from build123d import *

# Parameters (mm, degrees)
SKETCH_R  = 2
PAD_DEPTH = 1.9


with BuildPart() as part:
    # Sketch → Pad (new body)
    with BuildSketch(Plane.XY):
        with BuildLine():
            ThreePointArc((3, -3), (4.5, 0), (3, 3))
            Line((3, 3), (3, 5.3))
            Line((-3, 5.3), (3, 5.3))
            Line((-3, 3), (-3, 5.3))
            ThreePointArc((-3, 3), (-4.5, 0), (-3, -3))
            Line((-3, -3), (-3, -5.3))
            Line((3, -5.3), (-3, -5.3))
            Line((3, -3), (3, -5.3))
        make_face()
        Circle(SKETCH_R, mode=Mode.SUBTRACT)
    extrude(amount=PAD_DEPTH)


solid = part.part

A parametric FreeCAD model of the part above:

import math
import FreeCAD as App
import Part
import Sketcher

V = App.Vector

doc = App.newDocument("Part")
body = doc.addObject("PartDesign::Body", "Body")

# Sketch on XY plane
sketch1 = body.newObject("Sketcher::SketchObject", "Sketch")
sketch1.AttachmentSupport = (doc.getObject("XY_Plane"), [""])
sketch1.MapMode = "FlatFace"
sketch1.addGeometry([
    Part.ArcOfCircle(Part.Circle(V(0.8, 0, 0), V(0, 0, 1), 3.8), math.radians(-53), math.radians(53)),  # 0
    Part.LineSegment(V(3, 3, 0), V(3, 5.3, 0)),  # 1
    Part.LineSegment(V(3, 5.3, 0), V(-3, 5.3, 0)),  # 2
    Part.LineSegment(V(-3, 5.3, 0), V(-3, 3, 0)),  # 3
    Part.ArcOfCircle(Part.Circle(V(-0.8, 0, 0), V(0, 0, 1), 3.8), math.radians(127), math.radians(233)),  # 4
    Part.LineSegment(V(-3, -3, 0), V(-3, -5.3, 0)),  # 5
    Part.LineSegment(V(-3, -5.3, 0), V(3, -5.3, 0)),  # 6
    Part.LineSegment(V(3, -5.3, 0), V(3, -3, 0)),  # 7
    Part.Circle(V(0, 0, 0), V(0, 0, 1), 2),  # 8
], False)
sketch1.addConstraint([
    Sketcher.Constraint("Coincident", 0, 2, 1, 1),
    Sketcher.Constraint("Coincident", 1, 2, 2, 1),
    Sketcher.Constraint("Coincident", 2, 2, 3, 1),
    Sketcher.Constraint("Coincident", 3, 2, 4, 1),
    Sketcher.Constraint("Coincident", 4, 2, 5, 1),
    Sketcher.Constraint("Coincident", 5, 2, 6, 1),
    Sketcher.Constraint("Coincident", 6, 2, 7, 1),
    Sketcher.Constraint("Coincident", 7, 2, 0, 1),
    Sketcher.Constraint("Vertical", 1),
    Sketcher.Constraint("Horizontal", 2),
    Sketcher.Constraint("Vertical", 3),
    Sketcher.Constraint("Vertical", 5),
    Sketcher.Constraint("Horizontal", 6),
    Sketcher.Constraint("Vertical", 7),
    Sketcher.Constraint("Coincident", 8, 3, -1, 1),
    Sketcher.Constraint("Equal", 0, 4),
    Sketcher.Constraint("Symmetric", 0, 3, 4, 3, -1, 1),
    Sketcher.Constraint("Symmetric", 1, 2, 5, 2, -1, 1),
    Sketcher.Constraint("Symmetric", 0, 2, 3, 2, -2),
    Sketcher.Constraint("Horizontal", 4, 2, 7, 2),
    Sketcher.Constraint("Diameter", 8, 4.0),
    Sketcher.Constraint("DistanceX", 2, 2, 2, 1, 6.0),
    Sketcher.Constraint("Radius", 0, 3.75),
    Sketcher.Constraint("DistanceY", 1, 1, 1, 2, 2.3),
    Sketcher.Constraint("DistanceY", -1, 1, 0, 2, 3.0),
])
pad1 = body.newObject("PartDesign::Pad", "Pad")
pad1.Profile = sketch1
pad1.Length = 1.9

doc.recompute()
